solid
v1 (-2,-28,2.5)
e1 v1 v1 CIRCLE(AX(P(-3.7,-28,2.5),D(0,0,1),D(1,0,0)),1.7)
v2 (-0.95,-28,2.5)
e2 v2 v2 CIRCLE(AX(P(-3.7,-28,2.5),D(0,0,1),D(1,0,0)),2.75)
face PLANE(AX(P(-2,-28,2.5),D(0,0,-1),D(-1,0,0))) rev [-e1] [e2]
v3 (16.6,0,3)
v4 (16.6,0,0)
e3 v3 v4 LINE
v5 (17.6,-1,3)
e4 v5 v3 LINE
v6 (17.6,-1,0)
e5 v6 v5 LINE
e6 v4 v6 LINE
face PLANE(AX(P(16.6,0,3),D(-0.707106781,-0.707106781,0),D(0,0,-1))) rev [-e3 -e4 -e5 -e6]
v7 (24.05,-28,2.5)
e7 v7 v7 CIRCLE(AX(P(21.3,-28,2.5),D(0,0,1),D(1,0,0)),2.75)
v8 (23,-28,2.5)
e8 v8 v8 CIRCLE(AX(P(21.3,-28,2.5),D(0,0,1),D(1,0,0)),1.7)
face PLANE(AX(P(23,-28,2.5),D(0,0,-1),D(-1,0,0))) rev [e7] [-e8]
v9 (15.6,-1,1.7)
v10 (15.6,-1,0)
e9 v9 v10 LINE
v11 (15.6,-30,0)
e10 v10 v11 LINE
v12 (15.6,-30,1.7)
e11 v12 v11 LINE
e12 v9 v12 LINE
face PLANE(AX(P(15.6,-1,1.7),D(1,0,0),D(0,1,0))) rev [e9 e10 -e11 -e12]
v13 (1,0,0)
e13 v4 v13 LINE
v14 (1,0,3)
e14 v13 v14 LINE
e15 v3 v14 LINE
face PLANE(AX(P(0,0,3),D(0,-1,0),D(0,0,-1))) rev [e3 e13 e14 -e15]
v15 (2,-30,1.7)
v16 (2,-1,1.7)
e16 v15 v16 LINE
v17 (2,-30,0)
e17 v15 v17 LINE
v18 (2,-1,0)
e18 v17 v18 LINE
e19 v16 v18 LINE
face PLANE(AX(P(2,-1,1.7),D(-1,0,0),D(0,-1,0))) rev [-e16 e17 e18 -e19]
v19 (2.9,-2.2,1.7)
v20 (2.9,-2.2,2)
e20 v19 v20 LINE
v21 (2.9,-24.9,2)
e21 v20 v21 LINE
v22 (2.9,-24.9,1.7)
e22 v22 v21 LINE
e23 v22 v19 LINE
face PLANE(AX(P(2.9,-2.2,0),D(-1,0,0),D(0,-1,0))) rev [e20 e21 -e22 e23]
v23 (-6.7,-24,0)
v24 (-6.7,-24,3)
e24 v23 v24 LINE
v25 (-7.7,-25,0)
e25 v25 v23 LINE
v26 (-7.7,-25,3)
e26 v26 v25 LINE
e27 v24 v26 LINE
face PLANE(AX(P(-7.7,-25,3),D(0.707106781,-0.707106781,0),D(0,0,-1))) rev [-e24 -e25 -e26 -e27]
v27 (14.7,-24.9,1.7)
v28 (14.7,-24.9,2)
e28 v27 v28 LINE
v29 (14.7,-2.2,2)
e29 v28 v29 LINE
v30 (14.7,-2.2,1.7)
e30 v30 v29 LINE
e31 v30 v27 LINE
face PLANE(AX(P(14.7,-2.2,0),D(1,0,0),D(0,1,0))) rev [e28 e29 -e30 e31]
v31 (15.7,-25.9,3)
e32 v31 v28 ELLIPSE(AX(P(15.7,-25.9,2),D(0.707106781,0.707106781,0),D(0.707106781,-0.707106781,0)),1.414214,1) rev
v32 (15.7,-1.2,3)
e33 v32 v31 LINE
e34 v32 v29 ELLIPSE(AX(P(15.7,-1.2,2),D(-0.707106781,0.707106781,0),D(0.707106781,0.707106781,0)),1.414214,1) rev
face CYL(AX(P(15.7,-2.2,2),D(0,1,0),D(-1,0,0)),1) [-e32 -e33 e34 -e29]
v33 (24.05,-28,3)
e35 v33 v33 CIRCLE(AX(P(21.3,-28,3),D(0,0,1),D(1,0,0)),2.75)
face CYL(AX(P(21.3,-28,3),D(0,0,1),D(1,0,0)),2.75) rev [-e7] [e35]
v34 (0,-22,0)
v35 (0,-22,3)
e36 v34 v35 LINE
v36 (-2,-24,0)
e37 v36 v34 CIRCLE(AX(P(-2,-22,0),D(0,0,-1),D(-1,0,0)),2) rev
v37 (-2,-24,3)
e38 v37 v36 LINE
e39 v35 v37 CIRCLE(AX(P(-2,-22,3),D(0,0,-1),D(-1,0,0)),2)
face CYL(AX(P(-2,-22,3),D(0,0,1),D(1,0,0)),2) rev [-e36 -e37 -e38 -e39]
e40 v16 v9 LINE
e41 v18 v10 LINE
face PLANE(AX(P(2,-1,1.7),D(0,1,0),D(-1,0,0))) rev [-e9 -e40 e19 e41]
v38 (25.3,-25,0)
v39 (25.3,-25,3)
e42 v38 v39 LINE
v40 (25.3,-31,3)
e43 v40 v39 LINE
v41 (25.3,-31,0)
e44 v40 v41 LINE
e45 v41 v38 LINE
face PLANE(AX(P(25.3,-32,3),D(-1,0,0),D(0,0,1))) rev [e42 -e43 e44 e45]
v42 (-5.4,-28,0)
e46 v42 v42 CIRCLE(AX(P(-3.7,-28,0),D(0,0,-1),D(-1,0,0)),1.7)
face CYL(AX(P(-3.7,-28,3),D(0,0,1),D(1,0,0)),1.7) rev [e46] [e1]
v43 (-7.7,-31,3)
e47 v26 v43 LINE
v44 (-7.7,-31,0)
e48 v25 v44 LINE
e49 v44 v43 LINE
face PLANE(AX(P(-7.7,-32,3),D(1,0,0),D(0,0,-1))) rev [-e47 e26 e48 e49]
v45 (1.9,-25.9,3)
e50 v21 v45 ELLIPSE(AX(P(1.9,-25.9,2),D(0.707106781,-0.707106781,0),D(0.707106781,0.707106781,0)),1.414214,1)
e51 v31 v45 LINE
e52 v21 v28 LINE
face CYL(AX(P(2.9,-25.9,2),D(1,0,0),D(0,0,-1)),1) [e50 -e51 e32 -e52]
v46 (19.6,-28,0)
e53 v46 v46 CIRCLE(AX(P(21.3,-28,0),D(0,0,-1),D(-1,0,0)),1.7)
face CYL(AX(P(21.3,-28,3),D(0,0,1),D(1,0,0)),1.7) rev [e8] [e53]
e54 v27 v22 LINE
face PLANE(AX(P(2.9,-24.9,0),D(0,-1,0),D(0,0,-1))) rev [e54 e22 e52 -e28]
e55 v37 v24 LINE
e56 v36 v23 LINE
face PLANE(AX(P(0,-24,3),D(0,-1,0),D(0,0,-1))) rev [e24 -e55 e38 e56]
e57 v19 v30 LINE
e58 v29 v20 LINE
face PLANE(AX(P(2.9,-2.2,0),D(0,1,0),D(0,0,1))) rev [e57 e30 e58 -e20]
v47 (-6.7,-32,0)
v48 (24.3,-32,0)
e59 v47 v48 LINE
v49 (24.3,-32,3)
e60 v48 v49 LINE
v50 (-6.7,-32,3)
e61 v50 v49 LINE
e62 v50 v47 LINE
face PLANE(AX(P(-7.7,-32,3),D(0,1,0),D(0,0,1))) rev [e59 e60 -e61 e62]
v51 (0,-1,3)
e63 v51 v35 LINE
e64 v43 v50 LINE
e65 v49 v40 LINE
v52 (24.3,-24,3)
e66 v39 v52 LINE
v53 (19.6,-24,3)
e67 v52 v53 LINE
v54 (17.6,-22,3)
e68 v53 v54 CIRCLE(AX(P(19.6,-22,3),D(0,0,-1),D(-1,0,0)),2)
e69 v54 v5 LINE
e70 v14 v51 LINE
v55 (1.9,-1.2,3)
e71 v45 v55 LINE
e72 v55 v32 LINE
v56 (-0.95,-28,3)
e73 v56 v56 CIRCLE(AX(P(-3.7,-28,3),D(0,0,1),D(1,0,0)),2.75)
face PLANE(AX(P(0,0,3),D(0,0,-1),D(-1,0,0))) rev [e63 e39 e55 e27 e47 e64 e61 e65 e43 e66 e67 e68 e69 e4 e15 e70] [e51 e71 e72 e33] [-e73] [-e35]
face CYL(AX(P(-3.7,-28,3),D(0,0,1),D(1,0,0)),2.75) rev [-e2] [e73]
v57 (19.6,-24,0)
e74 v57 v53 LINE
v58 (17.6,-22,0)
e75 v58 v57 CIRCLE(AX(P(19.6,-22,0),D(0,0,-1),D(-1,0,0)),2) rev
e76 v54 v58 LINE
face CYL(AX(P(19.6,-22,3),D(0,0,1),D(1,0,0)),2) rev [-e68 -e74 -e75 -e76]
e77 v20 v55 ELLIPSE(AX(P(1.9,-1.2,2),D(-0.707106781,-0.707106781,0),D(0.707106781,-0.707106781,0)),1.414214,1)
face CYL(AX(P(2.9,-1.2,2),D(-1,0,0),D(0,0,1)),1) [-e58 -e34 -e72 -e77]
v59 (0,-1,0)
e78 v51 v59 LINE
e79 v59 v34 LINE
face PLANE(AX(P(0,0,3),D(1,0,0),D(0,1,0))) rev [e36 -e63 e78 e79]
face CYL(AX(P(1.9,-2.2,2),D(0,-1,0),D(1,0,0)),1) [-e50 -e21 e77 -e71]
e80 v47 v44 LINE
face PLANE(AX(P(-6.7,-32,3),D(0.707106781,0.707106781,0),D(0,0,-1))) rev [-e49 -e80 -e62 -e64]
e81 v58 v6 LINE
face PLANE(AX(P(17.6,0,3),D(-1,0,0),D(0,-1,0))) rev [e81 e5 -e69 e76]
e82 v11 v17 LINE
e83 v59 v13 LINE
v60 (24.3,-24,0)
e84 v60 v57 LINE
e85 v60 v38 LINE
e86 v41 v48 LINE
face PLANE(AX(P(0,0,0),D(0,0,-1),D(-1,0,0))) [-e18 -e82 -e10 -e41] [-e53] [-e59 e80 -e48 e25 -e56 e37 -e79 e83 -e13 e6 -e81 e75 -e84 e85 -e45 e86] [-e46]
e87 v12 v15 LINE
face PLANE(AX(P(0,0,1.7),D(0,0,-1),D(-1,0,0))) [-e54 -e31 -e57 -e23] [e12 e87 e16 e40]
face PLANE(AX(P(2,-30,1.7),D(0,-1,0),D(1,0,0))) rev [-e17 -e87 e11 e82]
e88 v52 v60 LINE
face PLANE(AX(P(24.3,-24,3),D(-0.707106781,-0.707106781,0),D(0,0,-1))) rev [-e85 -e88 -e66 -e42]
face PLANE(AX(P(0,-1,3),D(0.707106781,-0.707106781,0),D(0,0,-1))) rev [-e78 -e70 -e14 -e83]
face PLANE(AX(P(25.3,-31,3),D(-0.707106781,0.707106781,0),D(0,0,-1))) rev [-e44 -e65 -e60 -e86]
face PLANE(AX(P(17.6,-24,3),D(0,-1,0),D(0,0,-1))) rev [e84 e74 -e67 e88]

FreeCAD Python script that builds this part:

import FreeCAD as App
import Part
import Sketcher
from FreeCAD import Vector
Q = App.Units.Quantity


def edges_at(feature, points):
    """Names of the edges that pass closest to the given points."""
    edges = feature.Shape.Edges
    near = lambda p: min(range(len(edges)), key=lambda i: edges[i].distToShape(Part.Vertex(*p))[0])
    return sorted({f"Edge{near(p) + 1}" for p in points})

doc = App.newDocument("Part")
body = doc.addObject("PartDesign::Body", "Body")

# Sketch on XY plane
sketch1 = doc.addObject("Sketcher::SketchObject", "Sketch")
body.addObject(sketch1)
sketch1.AttachmentSupport = (doc.XY_Plane, [""])
sketch1.MapMode = "FlatFace"
sketch1.addGeometry([
    Part.LineSegment(Vector(-7.7, -32, 0), Vector(25.3, -32, 0)),  # 0
    Part.LineSegment(Vector(25.3, -32, 0), Vector(25.3, -24, 0)),  # 1
    Part.LineSegment(Vector(25.3, -24, 0), Vector(17.6, -24, 0)),  # 2
    Part.LineSegment(Vector(17.6, -24, 0), Vector(17.6, 0, 0)),  # 3
    Part.LineSegment(Vector(17.6, 0, 0), Vector(0, 0, 0)),  # 4
    Part.LineSegment(Vector(0, 0, 0), Vector(0, -24, 0)),  # 5
    Part.LineSegment(Vector(0, -24, 0), Vector(-7.7, -24, 0)),  # 6
    Part.LineSegment(Vector(-7.7, -24, 0), Vector(-7.7, -32, 0)),  # 7
], False)
sketch1.addConstraint([
    Sketcher.Constraint("Coincident", 0, 2, 1, 1),
    Sketcher.Constraint("Coincident", 1, 2, 2, 1),
    Sketcher.Constraint("Coincident", 2, 2, 3, 1),
    Sketcher.Constraint("Coincident", 3, 2, 4, 1),
    Sketcher.Constraint("Coincident", 4, 2, 5, 1),
    Sketcher.Constraint("Coincident", 5, 2, 6, 1),
    Sketcher.Constraint("Coincident", 6, 2, 7, 1),
    Sketcher.Constraint("Coincident", 7, 2, 0, 1),
    Sketcher.Constraint("Horizontal", 0),
    Sketcher.Constraint("Vertical", 1),
    Sketcher.Constraint("Horizontal", 2),
    Sketcher.Constraint("Vertical", 3),
    Sketcher.Constraint("Horizontal", 4),
    Sketcher.Constraint("Vertical", 5),
    Sketcher.Constraint("Horizontal", 6),
    Sketcher.Constraint("Vertical", 7),
    Sketcher.Constraint("Coincident", 4, 2, -1, 1),
    Sketcher.Constraint("Horizontal", 2, 2, 5, 2),
    Sketcher.Constraint("Equal", 2, 6),
    Sketcher.Constraint("DistanceX", 0, 1, 0, 2, Q("33 mm")),
    Sketcher.Constraint("DistanceY", 1, 1, 1, 2, Q("8 mm")),
    Sketcher.Constraint("DistanceY", 3, 1, 3, 2, Q("24 mm")),
    Sketcher.Constraint("DistanceX", 2, 2, 2, 1, Q("7.7 mm")),
])
pad1 = doc.addObject("PartDesign::Pad", "Pad")
body.addObject(pad1)
pad1.Profile = sketch1
pad1.Length = 3

# Sketch on XY plane
sketch2 = doc.addObject("Sketcher::SketchObject", "Sketch001")
body.addObject(sketch2)
sketch2.AttachmentSupport = (doc.XY_Plane, [""])
sketch2.MapMode = "FlatFace"
sketch2.addGeometry([
    Part.LineSegment(Vector(15.6, -1, 0), Vector(15.6, -30, 0)),
    Part.LineSegment(Vector(15.6, -30, 0), Vector(2, -30, 0)),
    Part.LineSegment(Vector(2, -30, 0), Vector(2, -1, 0)),
    Part.LineSegment(Vector(2, -1, 0), Vector(15.6, -1, 0)),
], False)
sketch2.addConstraint([
    Sketcher.Constraint("Coincident", 0, 2, 1, 1),
    Sketcher.Constraint("Coincident", 1, 2, 2, 1),
    Sketcher.Constraint("Coincident", 2, 2, 3, 1),
    Sketcher.Constraint("Coincident", 3, 2, 0, 1),
    Sketcher.Constraint("Vertical", 0),
    Sketcher.Constraint("Horizontal", 1),
    Sketcher.Constraint("Vertical", 2),
    Sketcher.Constraint("Horizontal", 3),
    Sketcher.Constraint("DistanceY", 0, 2, 0, 1, Q("29 mm")),
    Sketcher.Constraint("DistanceX", 1, 2, 1, 1, Q("13.6 mm")),
    Sketcher.Constraint("DistanceY", 0, 2, -1, 1, Q("30 mm")),
    Sketcher.Constraint("DistanceX", -1, 1, 1, 2, Q("2 mm")),
])
pocket1 = doc.addObject("PartDesign::Pocket", "Pocket")
body.addObject(pocket1)
pocket1.Profile = sketch2
pocket1.Length = 1.7
pocket1.Reversed = True

# Sketch on XY plane
sketch3 = doc.addObject("Sketcher::SketchObject", "Sketch002")
body.addObject(sketch3)
sketch3.AttachmentSupport = (doc.XY_Plane, [""])
sketch3.MapMode = "FlatFace"
sketch3.AttachmentOffset = App.Placement(Vector(0, 0, 3), App.Rotation())
sketch3.addGeometry([
    Part.LineSegment(Vector(2.9, -2.2, 0), Vector(2.9, -24.9, 0)),
    Part.LineSegment(Vector(2.9, -24.9, 0), Vector(14.7, -24.9, 0)),
    Part.LineSegment(Vector(14.7, -24.9, 0), Vector(14.7, -2.2, 0)),
    Part.LineSegment(Vector(14.7, -2.2, 0), Vector(2.9, -2.2, 0)),
], False)
sketch3.addConstraint([
    Sketcher.Constraint("Coincident", 0, 2, 1, 1),
    Sketcher.Constraint("Coincident", 1, 2, 2, 1),
    Sketcher.Constraint("Coincident", 2, 2, 3, 1),
    Sketcher.Constraint("Coincident", 3, 2, 0, 1),
    Sketcher.Constraint("Vertical", 0),
    Sketcher.Constraint("Horizontal", 1),
    Sketcher.Constraint("Vertical", 2),
    Sketcher.Constraint("Horizontal", 3),
    Sketcher.Constraint("DistanceX", 1, 1, 1, 2, Q("11.8 mm")),
    Sketcher.Constraint("DistanceY", 0, 2, 0, 1, Q("22.7 mm")),
    Sketcher.Constraint("DistanceX", -1, 1, 0, 2, Q("2.9 mm")),
    Sketcher.Constraint("DistanceY", 0, 2, -1, 1, Q("24.9 mm")),
])
pocket2 = doc.addObject("PartDesign::Pocket", "Pocket001")
body.addObject(pocket2)
pocket2.Profile = sketch3
pocket2.Type = "ThroughAll"

# Sketch on XY plane
sketch4 = doc.addObject("Sketcher::SketchObject", "Sketch003")
body.addObject(sketch4)
sketch4.AttachmentSupport = (doc.XY_Plane, [""])
sketch4.MapMode = "FlatFace"
sketch4.AttachmentOffset = App.Placement(Vector(0, 0, 3), App.Rotation())
sketch4.addGeometry([
    Part.Circle(Vector(-3.7, -28, 0), Vector(0, 0, 1), 1.7),
    Part.Circle(Vector(21.3, -28, 0), Vector(0, 0, 1), 1.7),
], False)
sketch4.addConstraint([
    Sketcher.Constraint("Equal", 0, 1),
    Sketcher.Constraint("Horizontal", 0, 3, 1, 3),
    Sketcher.Constraint("Diameter", 0, Q("3.4 mm")),
    Sketcher.Constraint("DistanceY", 0, 3, -1, 1, Q("28 mm")),
    Sketcher.Constraint("DistanceX", 0, 3, 1, 3, Q("25 mm")),
    Sketcher.Constraint("DistanceX", 0, 3, -1, 1, Q("3.7 mm")),
])
doc.recompute()
hole = doc.addObject("PartDesign::Hole", "Hole")
body.addObject(hole)
hole.Profile = sketch4
hole.ThreadType = "None"
hole.Diameter = 3.4
hole.DepthType = "Dimension"
hole.Depth = 7.5
hole.DrillPoint = "Angled"
hole.DrillPointAngle = 118
hole.HoleCutType = "Counterbore"
hole.HoleCutDiameter = 5.5
hole.HoleCutDepth = 0.5
doc.recompute()

chamfer = doc.addObject("PartDesign::Chamfer", "Chamfer")
body.addObject(chamfer)
chamfer.Base = (hole, edges_at(hole, [
    (0, 0, 1.5),
    (17.6, 0, 1.5),
    (25.3, -24, 1.5),
    (25.3, -32, 1.5),
    (-7.7, -32, 1.5),
    (-7.7, -24, 1.5),
]))
chamfer.Size = 1
doc.recompute()

fillet = doc.addObject("PartDesign::Fillet", "Fillet")
body.addObject(fillet)
fillet.Base = (chamfer, edges_at(chamfer, [(17.6, -24, 1.5), (0, -24, 1.5)]))
fillet.Radius = 2
doc.recompute()

fillet2 = doc.addObject("PartDesign::Fillet", "Fillet001")
body.addObject(fillet2)
fillet2.Base = (fillet, edges_at(fillet, [
    (2.9, -13.55, 3),
    (8.8, -24.9, 3),
    (14.7, -13.55, 3),
    (8.8, -2.2, 3),
]))
fillet2.Radius = 1

doc.recompute()
